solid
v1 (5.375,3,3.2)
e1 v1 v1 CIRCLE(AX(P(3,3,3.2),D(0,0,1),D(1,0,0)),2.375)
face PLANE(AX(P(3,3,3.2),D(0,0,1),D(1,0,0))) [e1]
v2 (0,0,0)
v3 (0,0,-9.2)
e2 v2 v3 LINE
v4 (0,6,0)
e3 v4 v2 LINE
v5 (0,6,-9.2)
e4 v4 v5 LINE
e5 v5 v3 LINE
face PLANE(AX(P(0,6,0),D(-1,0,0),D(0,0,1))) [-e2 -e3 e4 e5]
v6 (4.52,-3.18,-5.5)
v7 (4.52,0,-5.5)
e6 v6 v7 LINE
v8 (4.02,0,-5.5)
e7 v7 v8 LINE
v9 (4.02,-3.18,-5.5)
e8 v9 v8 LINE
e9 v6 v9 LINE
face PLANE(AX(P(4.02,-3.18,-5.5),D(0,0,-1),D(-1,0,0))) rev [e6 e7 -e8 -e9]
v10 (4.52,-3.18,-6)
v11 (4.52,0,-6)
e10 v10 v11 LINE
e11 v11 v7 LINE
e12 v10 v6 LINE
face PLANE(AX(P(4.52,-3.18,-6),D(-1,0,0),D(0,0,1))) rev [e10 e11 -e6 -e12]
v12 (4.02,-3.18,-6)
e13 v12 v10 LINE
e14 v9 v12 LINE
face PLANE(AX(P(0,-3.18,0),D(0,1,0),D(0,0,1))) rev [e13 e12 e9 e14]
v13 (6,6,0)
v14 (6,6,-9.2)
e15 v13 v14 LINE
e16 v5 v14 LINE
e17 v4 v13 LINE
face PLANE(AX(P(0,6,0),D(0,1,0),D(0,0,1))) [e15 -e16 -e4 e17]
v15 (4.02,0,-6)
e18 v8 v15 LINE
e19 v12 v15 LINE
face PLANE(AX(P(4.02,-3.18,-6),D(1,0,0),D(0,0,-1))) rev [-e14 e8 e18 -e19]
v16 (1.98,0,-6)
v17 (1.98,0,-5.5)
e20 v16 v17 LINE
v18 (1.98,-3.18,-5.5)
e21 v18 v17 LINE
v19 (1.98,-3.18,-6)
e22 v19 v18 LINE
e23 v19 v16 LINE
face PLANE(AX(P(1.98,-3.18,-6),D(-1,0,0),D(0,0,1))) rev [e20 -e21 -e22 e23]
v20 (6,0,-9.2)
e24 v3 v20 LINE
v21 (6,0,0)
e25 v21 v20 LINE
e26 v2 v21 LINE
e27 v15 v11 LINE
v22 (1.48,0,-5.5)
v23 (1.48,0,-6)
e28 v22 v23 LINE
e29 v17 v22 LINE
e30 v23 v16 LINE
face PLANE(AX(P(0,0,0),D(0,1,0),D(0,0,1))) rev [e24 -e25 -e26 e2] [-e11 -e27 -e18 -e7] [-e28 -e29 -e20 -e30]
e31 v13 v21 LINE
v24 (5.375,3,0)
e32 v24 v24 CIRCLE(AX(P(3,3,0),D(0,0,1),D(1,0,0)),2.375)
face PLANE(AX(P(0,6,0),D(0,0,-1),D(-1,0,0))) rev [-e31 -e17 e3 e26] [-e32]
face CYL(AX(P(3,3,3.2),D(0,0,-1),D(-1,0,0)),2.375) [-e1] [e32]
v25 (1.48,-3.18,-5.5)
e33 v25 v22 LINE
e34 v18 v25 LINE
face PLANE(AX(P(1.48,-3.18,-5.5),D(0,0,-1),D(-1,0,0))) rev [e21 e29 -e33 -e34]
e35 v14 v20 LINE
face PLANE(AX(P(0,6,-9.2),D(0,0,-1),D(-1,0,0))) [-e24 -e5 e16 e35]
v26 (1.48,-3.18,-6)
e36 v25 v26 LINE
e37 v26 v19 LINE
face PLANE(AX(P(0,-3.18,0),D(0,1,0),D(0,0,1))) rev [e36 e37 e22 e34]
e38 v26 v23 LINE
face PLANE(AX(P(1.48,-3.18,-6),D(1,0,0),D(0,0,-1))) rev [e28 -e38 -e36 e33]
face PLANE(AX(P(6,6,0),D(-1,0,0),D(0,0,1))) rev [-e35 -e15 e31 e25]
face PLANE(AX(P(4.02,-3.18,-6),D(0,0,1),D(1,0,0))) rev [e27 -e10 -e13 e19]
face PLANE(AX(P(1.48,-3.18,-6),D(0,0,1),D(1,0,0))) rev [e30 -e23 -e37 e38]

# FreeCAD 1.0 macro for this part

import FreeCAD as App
import Part
import Sketcher
from FreeCAD import Vector
Q = App.Units.Quantity


def add_polygon(sketch, points):
    """Adds a closed chain of lines whose ends are joined by coincident constraints."""
    first, n = sketch.GeometryCount, len(points)
    for a, b in zip(points, points[1:] + points[:1]):
        sketch.addGeometry(Part.LineSegment(App.Vector(*a, 0), App.Vector(*b, 0)), False)
    for i in range(n):
        sketch.addConstraint(Sketcher.Constraint("Coincident", first + i, 2, first + (i + 1) % n, 1))

doc = App.newDocument("Part")
body = doc.addObject("PartDesign::Body", "Body")

# Sketch on XZ plane
sketch1 = body.newObject("Sketcher::SketchObject", "Sketch")
sketch1.AttachmentSupport = (doc.getObject("XZ_Plane"), [""])
sketch1.MapMode = "FlatFace"
add_polygon(sketch1, [(0, -9), (0, 0), (6, 0), (6, -9)])  # lines 0-3
sketch1.addConstraint([
    Sketcher.Constraint("Vertical", 0),
    Sketcher.Constraint("Horizontal", 1),
    Sketcher.Constraint("Vertical", 2),
    Sketcher.Constraint("Horizontal", 3),
    Sketcher.Constraint("Coincident", 0, 2, -1, 1),
    Sketcher.Constraint("DistanceX", 1, 1, 1, 2, Q("6 mm")),
    Sketcher.Constraint("DistanceY", 0, 1, 0, 2, Q("9.2 mm")),
])
pad1 = body.newObject("PartDesign::Pad", "Pad")
pad1.Profile = sketch1
pad1.Length = 6
pad1.Reversed = True

# Sketch on XY plane
sketch2 = body.newObject("Sketcher::SketchObject", "Sketch001")
sketch2.AttachmentSupport = (doc.getObject("XY_Plane"), [""])
sketch2.MapMode = "FlatFace"
sketch2.addGeometry(Part.Circle(Vector(3, 3, 0), Vector(0, 0, 1), 2.4), False)
sketch2.addConstraint([
    Sketcher.Constraint("Diameter", 0, Q("4.75 mm")),
    Sketcher.Constraint("DistanceX", -1, 1, 0, 3, Q("3 mm")),
    Sketcher.Constraint("DistanceY", -1, 1, 0, 3, Q("3 mm")),
])
pad2 = body.newObject("PartDesign::Pad", "Pad001")
pad2.Profile = sketch2
pad2.Length = 3.2

# Sketch on XZ plane
sketch3 = body.newObject("Sketcher::SketchObject", "Sketch002")
sketch3.AttachmentSupport = (doc.getObject("XZ_Plane"), [""])
sketch3.MapMode = "FlatFace"
add_polygon(sketch3, [(1.5, -5.5), (1.5, -6), (2, -6), (2, -5.5)])  # lines 0-3
add_polygon(sketch3, [(4, -5.5), (4, -6), (4.5, -6), (4.5, -5.5)])  # lines 4-7
sketch3.addConstraint([
    Sketcher.Constraint("Vertical", 0),
    Sketcher.Constraint("Horizontal", 1),
    Sketcher.Constraint("Vertical", 2),
    Sketcher.Constraint("Horizontal", 3),
    Sketcher.Constraint("Vertical", 4),
    Sketcher.Constraint("Horizontal", 5),
    Sketcher.Constraint("Vertical", 6),
    Sketcher.Constraint("Horizontal", 7),
    Sketcher.Constraint("Horizontal", 1, 2, 4, 2),
    Sketcher.Constraint("Horizontal", 3, 2, 6, 2),
    Sketcher.Constraint("Equal", 3, 5),
    Sketcher.Constraint("Equal", 7, 0),
    Sketcher.Constraint("DistanceX", 1, 1, 1, 2, Q("0.5 mm")),
    Sketcher.Constraint("DistanceY", 0, 2, -1, 1, Q("6 mm")),
    Sketcher.Constraint("DistanceX", -1, 1, 0, 2, Q("1.48 mm")),
    Sketcher.Constraint("DistanceX", -1, 1, 4, 2, Q("4.02 mm")),
])
pad3 = body.newObject("PartDesign::Pad", "Pad002")
pad3.Profile = sketch3
pad3.Length = 3.18

doc.recompute()
